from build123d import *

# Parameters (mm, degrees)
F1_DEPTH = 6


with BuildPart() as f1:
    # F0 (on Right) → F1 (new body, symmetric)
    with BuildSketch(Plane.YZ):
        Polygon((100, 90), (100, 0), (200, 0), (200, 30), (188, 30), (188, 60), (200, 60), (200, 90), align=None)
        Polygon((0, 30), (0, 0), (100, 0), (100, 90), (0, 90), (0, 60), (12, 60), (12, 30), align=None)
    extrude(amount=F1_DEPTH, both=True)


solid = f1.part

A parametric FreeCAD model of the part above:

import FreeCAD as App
import Part
import Sketcher
from FreeCAD import Vector
Q = App.Units.Quantity


def add_polygon(sketch, points):
    """Adds a closed chain of lines whose ends are joined by coincident constraints."""
    first, n = sketch.GeometryCount, len(points)
    for a, b in zip(points, points[1:] + points[:1]):
        sketch.addGeometry(Part.LineSegment(App.Vector(*a, 0), App.Vector(*b, 0)), False)
    for i in range(n):
        sketch.addConstraint(Sketcher.Constraint("Coincident", first + i, 2, first + (i + 1) % n, 1))

doc = App.newDocument("Part")
body = doc.addObject("PartDesign::Body", "Body")

sketch1 = body.newObject("Sketcher::SketchObject", "Sketch")
sketch1.AttachmentSupport = (doc.getObject("YZ_Plane"), [""])
sketch1.MapMode = "FlatFace"
add_polygon(sketch1, [(200, 0), (200, 30), (188, 30), (188, 60), (200, 60), (200, 90), (0, 90), (0, 60), (12, 60), (12, 30), (0, 30), (0, 0)])
sketch1.addConstraint(Sketcher.Constraint("Vertical", 0))
sketch1.addConstraint(Sketcher.Constraint("Horizontal", 1))
sketch1.addConstraint(Sketcher.Constraint("Vertical", 2))
sketch1.addConstraint(Sketcher.Constraint("Horizontal", 3))
sketch1.addConstraint(Sketcher.Constraint("Vertical", 4))
sketch1.addConstraint(Sketcher.Constraint("Horizontal", 5))
sketch1.addConstraint(Sketcher.Constraint("Vertical", 6))
sketch1.addConstraint(Sketcher.Constraint("Horizontal", 7))
sketch1.addConstraint(Sketcher.Constraint("Vertical", 8))
sketch1.addConstraint(Sketcher.Constraint("Horizontal", 9))
sketch1.addConstraint(Sketcher.Constraint("Vertical", 10))
sketch1.addConstraint(Sketcher.Constraint("Horizontal", 11))
sketch1.addConstraint(Sketcher.Constraint("Coincident", 10, 2, -1, 1))
sketch1.addConstraint(Sketcher.Constraint("PointOnObject", 5, 2, -2))
sketch1.addConstraint(Sketcher.Constraint("Horizontal", 3, 2, 6, 2))
sketch1.addConstraint(Sketcher.Constraint("Horizontal", 1, 2, 8, 2))
sketch1.addConstraint(Sketcher.Constraint("Vertical", 0, 2, 3, 2))
sketch1.addConstraint(Sketcher.Constraint("Equal", 3, 7))
sketch1.addConstraint(Sketcher.Constraint("Equal", 0, 2))
sketch1.addConstraint(Sketcher.Constraint("Equal", 2, 4))
sketch1.addConstraint(Sketcher.Constraint("DistanceX", 1, 2, 1, 1, Q("12 mm")))
sketch1.addConstraint(Sketcher.Constraint("DistanceX", 5, 2, 5, 1, Q("200 mm")))
sketch1.addConstraint(Sketcher.Constraint("DistanceY", 0, 1, 0, 2, Q("30 mm")))
pad1 = body.newObject("PartDesign::Pad", "Pad")
pad1.Profile = sketch1
pad1.Length = 12
pad1.Midplane = True

doc.recompute()
